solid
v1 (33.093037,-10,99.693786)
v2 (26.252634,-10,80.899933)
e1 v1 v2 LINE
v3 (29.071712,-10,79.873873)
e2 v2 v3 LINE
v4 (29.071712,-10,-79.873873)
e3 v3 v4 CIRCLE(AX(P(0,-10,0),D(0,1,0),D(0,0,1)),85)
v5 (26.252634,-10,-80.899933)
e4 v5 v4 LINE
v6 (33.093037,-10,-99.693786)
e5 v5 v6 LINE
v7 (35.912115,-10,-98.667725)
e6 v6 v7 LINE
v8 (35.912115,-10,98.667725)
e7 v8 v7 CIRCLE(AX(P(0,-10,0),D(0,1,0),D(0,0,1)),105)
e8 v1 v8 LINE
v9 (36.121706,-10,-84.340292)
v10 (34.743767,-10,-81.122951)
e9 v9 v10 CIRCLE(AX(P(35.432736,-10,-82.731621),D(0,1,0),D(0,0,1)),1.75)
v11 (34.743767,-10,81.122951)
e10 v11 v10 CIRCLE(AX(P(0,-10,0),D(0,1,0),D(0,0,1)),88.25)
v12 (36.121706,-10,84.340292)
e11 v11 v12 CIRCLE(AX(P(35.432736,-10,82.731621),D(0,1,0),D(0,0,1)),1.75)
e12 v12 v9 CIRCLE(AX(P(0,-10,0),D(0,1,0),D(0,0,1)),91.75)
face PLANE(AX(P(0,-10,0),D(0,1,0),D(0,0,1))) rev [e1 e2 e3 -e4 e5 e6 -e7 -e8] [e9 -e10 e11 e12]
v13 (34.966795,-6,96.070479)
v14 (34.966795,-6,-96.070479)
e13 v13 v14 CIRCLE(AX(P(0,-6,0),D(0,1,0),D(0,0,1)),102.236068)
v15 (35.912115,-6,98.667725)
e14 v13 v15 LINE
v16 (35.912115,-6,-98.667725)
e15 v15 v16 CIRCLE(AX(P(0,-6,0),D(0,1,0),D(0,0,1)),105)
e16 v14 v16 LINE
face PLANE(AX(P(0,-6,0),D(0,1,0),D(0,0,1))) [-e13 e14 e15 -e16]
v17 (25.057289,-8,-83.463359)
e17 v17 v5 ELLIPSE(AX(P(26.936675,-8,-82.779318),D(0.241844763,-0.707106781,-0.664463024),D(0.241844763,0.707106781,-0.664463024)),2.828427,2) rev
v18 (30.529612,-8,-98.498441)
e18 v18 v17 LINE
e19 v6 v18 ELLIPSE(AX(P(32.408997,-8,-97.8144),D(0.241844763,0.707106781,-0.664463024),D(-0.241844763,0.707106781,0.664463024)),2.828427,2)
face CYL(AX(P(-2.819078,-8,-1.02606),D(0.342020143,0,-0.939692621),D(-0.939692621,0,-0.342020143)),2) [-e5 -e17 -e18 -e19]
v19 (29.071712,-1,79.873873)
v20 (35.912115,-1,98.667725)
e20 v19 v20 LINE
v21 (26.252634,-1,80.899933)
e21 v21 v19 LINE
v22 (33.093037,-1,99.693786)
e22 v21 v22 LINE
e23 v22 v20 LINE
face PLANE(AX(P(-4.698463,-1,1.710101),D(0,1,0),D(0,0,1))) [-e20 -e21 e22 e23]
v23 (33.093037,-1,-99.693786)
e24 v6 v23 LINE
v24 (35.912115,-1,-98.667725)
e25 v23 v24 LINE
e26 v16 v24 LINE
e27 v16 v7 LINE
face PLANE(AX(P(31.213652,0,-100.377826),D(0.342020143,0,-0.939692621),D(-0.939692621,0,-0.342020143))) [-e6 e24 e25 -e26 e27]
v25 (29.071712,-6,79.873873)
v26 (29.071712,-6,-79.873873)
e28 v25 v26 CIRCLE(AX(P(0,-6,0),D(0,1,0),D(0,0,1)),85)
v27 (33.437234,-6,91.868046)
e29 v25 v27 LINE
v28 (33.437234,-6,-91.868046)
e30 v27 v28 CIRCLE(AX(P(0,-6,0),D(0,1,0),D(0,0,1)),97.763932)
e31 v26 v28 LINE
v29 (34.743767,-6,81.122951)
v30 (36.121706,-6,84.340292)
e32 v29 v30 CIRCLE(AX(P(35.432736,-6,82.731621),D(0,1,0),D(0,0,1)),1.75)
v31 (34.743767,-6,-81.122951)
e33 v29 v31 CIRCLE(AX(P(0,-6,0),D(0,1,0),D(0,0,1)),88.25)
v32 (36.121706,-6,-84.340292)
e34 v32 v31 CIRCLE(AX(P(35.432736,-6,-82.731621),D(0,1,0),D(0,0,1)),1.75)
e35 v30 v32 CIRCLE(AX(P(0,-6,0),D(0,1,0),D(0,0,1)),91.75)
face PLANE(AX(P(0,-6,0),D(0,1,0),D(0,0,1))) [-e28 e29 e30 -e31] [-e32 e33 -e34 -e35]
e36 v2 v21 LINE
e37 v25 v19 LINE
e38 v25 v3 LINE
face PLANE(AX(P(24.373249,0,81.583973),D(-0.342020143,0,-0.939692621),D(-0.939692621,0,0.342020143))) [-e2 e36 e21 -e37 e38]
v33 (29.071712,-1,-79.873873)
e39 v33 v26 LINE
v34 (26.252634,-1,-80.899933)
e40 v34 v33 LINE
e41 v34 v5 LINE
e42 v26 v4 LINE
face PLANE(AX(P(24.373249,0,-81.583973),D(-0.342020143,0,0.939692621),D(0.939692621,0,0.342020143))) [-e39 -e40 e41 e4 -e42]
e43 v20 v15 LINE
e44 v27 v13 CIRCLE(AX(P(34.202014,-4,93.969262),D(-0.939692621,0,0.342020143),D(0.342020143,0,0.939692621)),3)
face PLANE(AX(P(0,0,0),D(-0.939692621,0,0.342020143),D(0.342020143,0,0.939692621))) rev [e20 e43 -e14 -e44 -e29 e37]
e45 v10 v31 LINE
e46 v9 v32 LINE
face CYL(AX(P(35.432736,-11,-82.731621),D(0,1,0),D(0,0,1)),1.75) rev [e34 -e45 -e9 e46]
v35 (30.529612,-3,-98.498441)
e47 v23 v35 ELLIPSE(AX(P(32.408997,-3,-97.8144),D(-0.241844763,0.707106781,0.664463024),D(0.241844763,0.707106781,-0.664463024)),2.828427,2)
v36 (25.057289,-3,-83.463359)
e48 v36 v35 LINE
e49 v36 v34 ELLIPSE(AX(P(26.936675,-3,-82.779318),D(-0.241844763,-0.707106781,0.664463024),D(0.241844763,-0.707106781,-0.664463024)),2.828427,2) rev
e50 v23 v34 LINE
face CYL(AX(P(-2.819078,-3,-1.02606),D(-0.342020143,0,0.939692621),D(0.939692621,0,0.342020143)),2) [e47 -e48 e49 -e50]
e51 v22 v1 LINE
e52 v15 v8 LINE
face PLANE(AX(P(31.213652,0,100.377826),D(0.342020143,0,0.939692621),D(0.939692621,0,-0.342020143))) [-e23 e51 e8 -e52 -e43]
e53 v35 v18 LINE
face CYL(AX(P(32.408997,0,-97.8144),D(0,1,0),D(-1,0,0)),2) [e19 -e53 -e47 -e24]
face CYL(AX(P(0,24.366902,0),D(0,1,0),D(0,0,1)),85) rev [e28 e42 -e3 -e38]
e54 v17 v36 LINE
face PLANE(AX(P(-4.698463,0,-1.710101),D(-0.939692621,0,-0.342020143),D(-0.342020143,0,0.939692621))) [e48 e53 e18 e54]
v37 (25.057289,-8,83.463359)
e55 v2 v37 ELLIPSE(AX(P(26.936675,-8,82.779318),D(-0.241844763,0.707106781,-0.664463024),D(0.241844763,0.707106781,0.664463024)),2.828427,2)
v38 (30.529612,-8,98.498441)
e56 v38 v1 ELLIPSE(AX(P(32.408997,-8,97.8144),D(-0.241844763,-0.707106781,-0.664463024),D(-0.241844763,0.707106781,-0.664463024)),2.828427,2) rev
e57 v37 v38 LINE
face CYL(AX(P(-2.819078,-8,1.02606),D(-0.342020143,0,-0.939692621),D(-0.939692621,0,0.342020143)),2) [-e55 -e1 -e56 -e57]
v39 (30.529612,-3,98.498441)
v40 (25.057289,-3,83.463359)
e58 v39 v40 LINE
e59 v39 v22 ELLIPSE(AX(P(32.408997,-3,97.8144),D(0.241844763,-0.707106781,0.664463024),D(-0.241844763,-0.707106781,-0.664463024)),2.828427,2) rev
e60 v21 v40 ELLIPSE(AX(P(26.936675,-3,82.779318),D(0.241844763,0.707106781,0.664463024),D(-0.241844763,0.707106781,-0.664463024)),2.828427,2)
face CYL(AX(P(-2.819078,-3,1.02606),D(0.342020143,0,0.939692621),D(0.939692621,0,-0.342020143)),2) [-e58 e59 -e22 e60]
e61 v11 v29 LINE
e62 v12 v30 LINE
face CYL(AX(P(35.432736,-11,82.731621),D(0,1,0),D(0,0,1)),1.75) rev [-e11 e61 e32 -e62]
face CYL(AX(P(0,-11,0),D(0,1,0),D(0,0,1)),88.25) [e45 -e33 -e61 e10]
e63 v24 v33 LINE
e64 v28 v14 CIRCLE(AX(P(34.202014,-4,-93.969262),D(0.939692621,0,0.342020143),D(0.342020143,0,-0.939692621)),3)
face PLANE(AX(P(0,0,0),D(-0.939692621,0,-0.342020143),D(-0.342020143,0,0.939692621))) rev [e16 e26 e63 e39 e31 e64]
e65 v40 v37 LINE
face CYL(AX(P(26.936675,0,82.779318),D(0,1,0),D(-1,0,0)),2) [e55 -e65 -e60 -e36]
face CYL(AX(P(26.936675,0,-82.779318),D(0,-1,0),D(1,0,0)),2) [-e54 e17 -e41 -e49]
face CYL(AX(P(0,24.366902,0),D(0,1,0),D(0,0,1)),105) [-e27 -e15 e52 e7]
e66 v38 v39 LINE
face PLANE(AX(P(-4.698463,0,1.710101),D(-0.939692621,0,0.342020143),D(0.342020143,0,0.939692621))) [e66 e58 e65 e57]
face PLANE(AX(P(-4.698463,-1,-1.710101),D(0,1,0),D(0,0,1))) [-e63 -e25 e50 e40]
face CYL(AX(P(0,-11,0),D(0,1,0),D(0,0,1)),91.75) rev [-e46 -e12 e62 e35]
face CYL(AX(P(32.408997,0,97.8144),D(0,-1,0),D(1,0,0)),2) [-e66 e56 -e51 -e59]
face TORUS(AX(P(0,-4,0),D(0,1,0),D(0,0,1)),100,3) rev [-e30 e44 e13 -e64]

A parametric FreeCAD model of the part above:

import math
import FreeCAD as App
import Part
import Sketcher

V = App.Vector


def edges_at(feature, points):
    """Names of the edges that pass closest to the given points."""
    edges = feature.Shape.Edges
    near = lambda p: min(range(len(edges)), key=lambda i: edges[i].distToShape(Part.Vertex(*p))[0])
    return sorted({f"Edge{near(p) + 1}" for p in points})


def add_polygon(sketch, points):
    """Adds a closed chain of lines whose ends are joined by coincident constraints."""
    first, n = sketch.GeometryCount, len(points)
    for a, b in zip(points, points[1:] + points[:1]):
        sketch.addGeometry(Part.LineSegment(App.Vector(*a, 0), App.Vector(*b, 0)), False)
    for i in range(n):
        sketch.addConstraint(Sketcher.Constraint("Coincident", first + i, 2, first + (i + 1) % n, 1))

doc = App.newDocument("Part")
body = doc.addObject("PartDesign::Body", "Body")

sketch1 = doc.addObject("Sketcher::SketchObject", "Sketch")
body.addObject(sketch1)
sketch1.AttachmentSupport = (doc.XY_Plane, [""])
sketch1.MapMode = "FlatFace"
sketch1.addGeometry([
    Part.ArcOfCircle(Part.Circle(V(100, -4, 0), V(0, 0, 1), 3), math.radians(-138), math.radians(-42)),
    Part.LineSegment(V(97.8, -6, 0), V(85, -6, 0)),
    Part.LineSegment(V(85, -6, 0), V(85, -10, 0)),
    Part.LineSegment(V(85, -10, 0), V(105, -10, 0)),
    Part.LineSegment(V(105, -10, 0), V(105, -6, 0)),
    Part.LineSegment(V(105, -6, 0), V(102.2, -6, 0)),
], False)
sketch1.addConstraint([
    Sketcher.Constraint("Coincident", 0, 1, 1, 1),
    Sketcher.Constraint("Coincident", 1, 2, 2, 1),
    Sketcher.Constraint("Coincident", 2, 2, 3, 1),
    Sketcher.Constraint("Coincident", 3, 2, 4, 1),
    Sketcher.Constraint("Coincident", 4, 2, 5, 1),
    Sketcher.Constraint("Coincident", 5, 2, 0, 2),
    Sketcher.Constraint("Horizontal", 1),
    Sketcher.Constraint("Vertical", 2),
    Sketcher.Constraint("Horizontal", 3),
    Sketcher.Constraint("Vertical", 4),
    Sketcher.Constraint("Horizontal", 5),
    Sketcher.Constraint("Horizontal", 1, 2, 4, 2),
    Sketcher.Constraint("Radius", 0, 3.0),
    Sketcher.Constraint("DistanceX", 3, 1, 3, 2, 20.0),
    Sketcher.Constraint("DistanceY", 2, 2, 2, 1, 4.0),
    Sketcher.Constraint("DistanceX", -1, 1, 0, 3, 100.0),
    Sketcher.Constraint("DistanceY", 0, 3, -1, 1, 4.0),
    Sketcher.Constraint("DistanceY", 0, 1, -1, 1, 6.0),
    Sketcher.Constraint("DistanceX", -1, 1, 1, 2, 85.0),
])
revolution = doc.addObject("PartDesign::Revolution", "Revolution")
body.addObject(revolution)
revolution.Profile = sketch1
revolution.ReferenceAxis = (sketch1, ["V_Axis"])
revolution.Angle = 70
revolution.Reversed = True

sketch2 = doc.addObject("Sketcher::SketchObject", "Sketch001")
body.addObject(sketch2)
sketch2.AttachmentSupport = (doc.XY_Plane, [""])
sketch2.MapMode = "FlatFace"
sketch2.addGeometry([
    Part.ArcOfCircle(Part.Circle(V(100, -4, 0), V(0, 0, 1), 3), math.radians(-138), math.radians(-42)),
    Part.LineSegment(V(97.8, -6, 0), V(85, -6, 0)),
    Part.LineSegment(V(85, -6, 0), V(85, -10, 0)),
    Part.LineSegment(V(85, -10, 0), V(105, -10, 0)),
    Part.LineSegment(V(105, -10, 0), V(105, -6, 0)),
    Part.LineSegment(V(105, -6, 0), V(102.2, -6, 0)),
], False)
sketch2.addConstraint([
    Sketcher.Constraint("Coincident", 0, 1, 1, 1),
    Sketcher.Constraint("Coincident", 1, 2, 2, 1),
    Sketcher.Constraint("Coincident", 2, 2, 3, 1),
    Sketcher.Constraint("Coincident", 3, 2, 4, 1),
    Sketcher.Constraint("Coincident", 4, 2, 5, 1),
    Sketcher.Constraint("Coincident", 5, 2, 0, 2),
    Sketcher.Constraint("Horizontal", 1),
    Sketcher.Constraint("Vertical", 2),
    Sketcher.Constraint("Horizontal", 3),
    Sketcher.Constraint("Vertical", 4),
    Sketcher.Constraint("Horizontal", 5),
    Sketcher.Constraint("Horizontal", 1, 2, 4, 2),
    Sketcher.Constraint("Radius", 0, 3.0),
    Sketcher.Constraint("DistanceX", 3, 1, 3, 2, 20.0),
    Sketcher.Constraint("DistanceY", 2, 2, 2, 1, 4.0),
    Sketcher.Constraint("DistanceX", -1, 1, 0, 3, 100.0),
    Sketcher.Constraint("DistanceY", 0, 3, -1, 1, 4.0),
    Sketcher.Constraint("DistanceY", 0, 1, -1, 1, 6.0),
    Sketcher.Constraint("DistanceX", -1, 1, 1, 2, 85.0),
])
revolution2 = doc.addObject("PartDesign::Revolution", "Revolution001")
body.addObject(revolution2)
revolution2.Profile = sketch2
revolution2.ReferenceAxis = (sketch2, ["V_Axis"])
revolution2.Angle = 70

sketch3 = doc.addObject("Sketcher::SketchObject", "Sketch002")
body.addObject(sketch3)
sketch3.Placement = App.Placement(V(0, 0, 0), App.Rotation(V(0.342020143, 0, 0.939692621), V(0, 1, 0), V(-0.939692621, 0, 0.342020143), "ZXY"))
add_polygon(sketch3, [(85, -1), (85, -10), (105, -10), (105, -1)])
sketch3.addConstraint([
    Sketcher.Constraint("Vertical", 0),
    Sketcher.Constraint("Horizontal", 1),
    Sketcher.Constraint("Vertical", 2),
    Sketcher.Constraint("Horizontal", 3),
    Sketcher.Constraint("DistanceX", 1, 1, 1, 2, 20.0),
    Sketcher.Constraint("DistanceY", 0, 2, 0, 1, 9.0),
    Sketcher.Constraint("DistanceX", -1, 1, 0, 2, 85.0),
    Sketcher.Constraint("DistanceY", 0, 2, -1, 1, 10.0),
])
pad1 = doc.addObject("PartDesign::Pad", "Pad")
body.addObject(pad1)
pad1.Profile = sketch3
pad1.Length = 5

sketch4 = doc.addObject("Sketcher::SketchObject", "Sketch003")
body.addObject(sketch4)
sketch4.Placement = App.Placement(V(0, 0, 0), App.Rotation(V(-0.342020143, 0, 0.939692621), V(0, 1, 0), V(-0.939692621, 0, -0.342020143), "ZXY"))
add_polygon(sketch4, [(-105, -1), (-105, -10), (-85, -10), (-85, -1)])
sketch4.addConstraint([
    Sketcher.Constraint("Vertical", 0),
    Sketcher.Constraint("Horizontal", 1),
    Sketcher.Constraint("Vertical", 2),
    Sketcher.Constraint("Horizontal", 3),
    Sketcher.Constraint("DistanceX", 1, 1, 1, 2, 20.0),
    Sketcher.Constraint("DistanceY", 0, 2, 0, 1, 9.0),
    Sketcher.Constraint("DistanceX", 0, 2, -1, 1, 105.0),
    Sketcher.Constraint("DistanceY", 0, 2, -1, 1, 10.0),
])
pad2 = doc.addObject("PartDesign::Pad", "Pad001")
body.addObject(pad2)
pad2.Profile = sketch4
pad2.Length = 5

sketch5 = doc.addObject("Sketcher::SketchObject", "Sketch004")
body.addObject(sketch5)
sketch5.AttachmentSupport = (doc.XZ_Plane, [""])
sketch5.MapMode = "FlatFace"
sketch5.AttachmentOffset = App.Placement(V(0, 0, 6), App.Rotation())
sketch5.addGeometry([
    Part.ArcOfCircle(Part.Circle(V(0, 0, 0), V(0, 0, 1), 88.2), math.radians(-67), math.radians(67)),
    Part.ArcOfCircle(Part.Circle(V(35.4, 82.7, 0), V(0, 0, 1), 1.8), math.radians(67), math.radians(247)),
    Part.ArcOfCircle(Part.Circle(V(0, 0, 0), V(0, 0, 1), 91.8), math.radians(-67), math.radians(67)),
    Part.ArcOfCircle(Part.Circle(V(35.4, -82.7, 0), V(0, 0, 1), 1.8), math.radians(113), math.radians(293)),
], False)
sketch5.addConstraint([
    Sketcher.Constraint("Tangent", 0, 2, 1, 2),
    Sketcher.Constraint("Tangent", 1, 1, 2, 2),
    Sketcher.Constraint("Tangent", 2, 1, 3, 2),
    Sketcher.Constraint("Tangent", 3, 1, 0, 1),
    Sketcher.Constraint("Coincident", 0, 3, -1, 1),
    Sketcher.Constraint("Coincident", 2, 3, -1, 1),
    Sketcher.Constraint("Vertical", 1, 3, 3, 3),
    Sketcher.Constraint("Radius", 0, 88.25),
    Sketcher.Constraint("Radius", 1, 1.75),
    Sketcher.Constraint("DistanceY", 3, 1, 0, 2, 162.245902),
])
pocket1 = doc.addObject("PartDesign::Pocket", "Pocket")
body.addObject(pocket1)
pocket1.Profile = sketch5
pocket1.Length = 5
pocket1.Reversed = True
doc.recompute()

fillet = doc.addObject("PartDesign::Fillet", "Fillet")
body.addObject(fillet)
fillet.Base = (pocket1, edges_at(pocket1, [
    (24.373, -5.5, 81.584),
    (31.214, -5.5, 100.378),
    (27.793, -1, 90.981),
    (27.793, -10, 90.981),
    (31.214, -5.5, -100.378),
    (24.373, -5.5, -81.584),
    (27.793, -1, -90.981),
    (27.793, -10, -90.981),
]))
fillet.Radius = 2

doc.recompute()
